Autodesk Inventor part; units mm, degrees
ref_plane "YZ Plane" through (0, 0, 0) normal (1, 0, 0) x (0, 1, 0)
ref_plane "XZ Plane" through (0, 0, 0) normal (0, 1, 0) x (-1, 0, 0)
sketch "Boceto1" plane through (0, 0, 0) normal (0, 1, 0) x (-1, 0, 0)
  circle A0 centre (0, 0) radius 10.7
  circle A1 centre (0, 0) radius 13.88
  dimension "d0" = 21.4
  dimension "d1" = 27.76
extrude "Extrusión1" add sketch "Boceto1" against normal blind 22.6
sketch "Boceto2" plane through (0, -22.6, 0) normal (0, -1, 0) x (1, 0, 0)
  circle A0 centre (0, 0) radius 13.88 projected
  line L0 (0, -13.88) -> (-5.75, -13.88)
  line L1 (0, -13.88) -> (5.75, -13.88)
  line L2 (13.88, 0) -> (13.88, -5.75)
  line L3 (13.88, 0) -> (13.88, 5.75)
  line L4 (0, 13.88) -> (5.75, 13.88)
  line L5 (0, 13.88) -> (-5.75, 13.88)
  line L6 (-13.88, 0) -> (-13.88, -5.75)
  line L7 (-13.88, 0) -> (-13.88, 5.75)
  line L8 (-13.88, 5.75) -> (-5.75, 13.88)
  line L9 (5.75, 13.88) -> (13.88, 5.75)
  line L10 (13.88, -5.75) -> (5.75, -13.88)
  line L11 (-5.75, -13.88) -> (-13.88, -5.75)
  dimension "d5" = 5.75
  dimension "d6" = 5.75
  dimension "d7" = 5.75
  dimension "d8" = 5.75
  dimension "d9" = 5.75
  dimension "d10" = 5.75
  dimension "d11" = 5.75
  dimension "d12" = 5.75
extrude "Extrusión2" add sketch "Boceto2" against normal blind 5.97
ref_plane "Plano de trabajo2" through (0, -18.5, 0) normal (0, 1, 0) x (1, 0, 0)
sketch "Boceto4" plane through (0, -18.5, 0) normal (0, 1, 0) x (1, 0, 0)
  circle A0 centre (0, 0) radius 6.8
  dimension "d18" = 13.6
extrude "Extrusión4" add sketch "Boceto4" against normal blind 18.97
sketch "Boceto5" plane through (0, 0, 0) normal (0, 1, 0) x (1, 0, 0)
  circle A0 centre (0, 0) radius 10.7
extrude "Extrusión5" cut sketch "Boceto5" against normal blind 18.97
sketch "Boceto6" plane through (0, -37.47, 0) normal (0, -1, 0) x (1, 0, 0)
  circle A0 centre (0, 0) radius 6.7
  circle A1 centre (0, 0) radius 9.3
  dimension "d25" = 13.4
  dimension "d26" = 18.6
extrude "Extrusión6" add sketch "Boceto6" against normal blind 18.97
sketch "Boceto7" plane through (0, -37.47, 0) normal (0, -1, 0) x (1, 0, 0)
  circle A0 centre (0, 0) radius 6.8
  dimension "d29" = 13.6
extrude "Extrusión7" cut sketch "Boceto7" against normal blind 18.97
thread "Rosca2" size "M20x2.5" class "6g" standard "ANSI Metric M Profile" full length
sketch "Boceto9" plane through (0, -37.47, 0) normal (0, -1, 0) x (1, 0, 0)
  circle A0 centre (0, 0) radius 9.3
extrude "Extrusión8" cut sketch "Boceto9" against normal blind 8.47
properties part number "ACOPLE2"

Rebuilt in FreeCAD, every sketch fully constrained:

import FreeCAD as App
import Part
import Sketcher
from FreeCAD import Vector


def add_polygon(sketch, points):
    """Adds a closed chain of lines whose ends are joined by coincident constraints."""
    first, n = sketch.GeometryCount, len(points)
    for a, b in zip(points, points[1:] + points[:1]):
        sketch.addGeometry(Part.LineSegment(App.Vector(*a, 0), App.Vector(*b, 0)), False)
    for i in range(n):
        sketch.addConstraint(Sketcher.Constraint("Coincident", first + i, 2, first + (i + 1) % n, 1))

doc = App.newDocument("Part")
body = doc.addObject("PartDesign::Body", "Body")

sketch1 = body.newObject("Sketcher::SketchObject", "Sketch")
sketch1.AttachmentSupport = (doc.getObject("XZ_Plane"), [""])
sketch1.MapMode = "FlatFace"
sketch1.addGeometry([
    Part.Circle(Vector(0, 0, 0), Vector(0, 0, 1), 13.88),
    Part.Circle(Vector(0, 0, 0), Vector(0, 0, 1), 10.7),
], False)
sketch1.addConstraint([
    Sketcher.Constraint("Coincident", 0, 3, -1, 1),
    Sketcher.Constraint("Coincident", 1, 3, -1, 1),
    Sketcher.Constraint("Diameter", 1, 21.4),
    Sketcher.Constraint("Diameter", 0, 27.76),
])
pad1 = body.newObject("PartDesign::Pad", "Pad")
pad1.Profile = sketch1
pad1.Length = 22.6

sketch2 = body.newObject("Sketcher::SketchObject", "Sketch001")
sketch2.AttachmentSupport = (doc.getObject("XZ_Plane"), [""])
sketch2.MapMode = "FlatFace"
sketch2.AttachmentOffset = App.Placement(Vector(0, 0, 22.6), App.Rotation())
add_polygon(sketch2, [(13.88, -5.75), (13.88, 5.75), (5.75, 13.88), (-5.75, 13.88), (-13.88, 5.75), (-13.88, -5.75), (-5.75, -13.88), (5.75, -13.88)])
sketch2.addConstraint([
    Sketcher.Constraint("Vertical", 0),
    Sketcher.Constraint("Horizontal", 2),
    Sketcher.Constraint("Vertical", 4),
    Sketcher.Constraint("Horizontal", 6),
    Sketcher.Constraint("Symmetric", 0, 2, 4, 2, -1, 1),
    Sketcher.Constraint("Symmetric", 1, 2, 5, 2, -1, 1),
    Sketcher.Constraint("Perpendicular", 1, 3),
    Sketcher.Constraint("Perpendicular", 5, 7),
    Sketcher.Constraint("Horizontal", 0, 2, 3, 2),
    Sketcher.Constraint("Horizontal", 4, 2, 7, 2),
    Sketcher.Constraint("Vertical", 2, 2, 5, 2),
    Sketcher.Constraint("Equal", 6, 0),
    Sketcher.Constraint("DistanceY", -1, 1, 0, 2, 5.75),
    Sketcher.Constraint("DistanceX", -1, 1, 0, 2, 13.88),
])
pad2 = body.newObject("PartDesign::Pad", "Pad001")
pad2.Profile = sketch2
pad2.Length = 5.97
pad2.Reversed = True

sketch3 = body.newObject("Sketcher::SketchObject", "Sketch002")
sketch3.AttachmentSupport = (doc.getObject("XZ_Plane"), [""])
sketch3.MapMode = "FlatFace"
sketch3.AttachmentOffset = App.Placement(Vector(0, 0, 18.5), App.Rotation())
sketch3.addGeometry(Part.Circle(Vector(0, 0, 0), Vector(0, 0, 1), 6.8), False)
sketch3.addConstraint([
    Sketcher.Constraint("Coincident", 0, 3, -1, 1),
    Sketcher.Constraint("Diameter", 0, 13.6),
])
pad3 = body.newObject("PartDesign::Pad", "Pad002")
pad3.Profile = sketch3
pad3.Length = 18.97

sketch4 = body.newObject("Sketcher::SketchObject", "Sketch003")
sketch4.AttachmentSupport = (doc.getObject("XZ_Plane"), [""])
sketch4.MapMode = "FlatFace"
sketch4.addGeometry(Part.Circle(Vector(0, 0, 0), Vector(0, 0, 1), 10.7), False)
sketch4.addConstraint([
    Sketcher.Constraint("Coincident", 0, 3, -1, 1),
    Sketcher.Constraint("Diameter", 0, 21.4),
])
pocket1 = body.newObject("PartDesign::Pocket", "Pocket")
pocket1.Profile = sketch4
pocket1.Length = 18.97
pocket1.Reversed = True

sketch5 = body.newObject("Sketcher::SketchObject", "Sketch004")
sketch5.AttachmentSupport = (doc.getObject("XZ_Plane"), [""])
sketch5.MapMode = "FlatFace"
sketch5.AttachmentOffset = App.Placement(Vector(0, 0, 37.47), App.Rotation())
sketch5.addGeometry([
    Part.Circle(Vector(0, 0, 0), Vector(0, 0, 1), 9.3),
    Part.Circle(Vector(0, 0, 0), Vector(0, 0, 1), 6.7),
], False)
sketch5.addConstraint([
    Sketcher.Constraint("Coincident", 0, 3, -1, 1),
    Sketcher.Constraint("Coincident", 1, 3, -1, 1),
    Sketcher.Constraint("Diameter", 0, 18.6),
    Sketcher.Constraint("Diameter", 1, 13.4),
])
pad4 = body.newObject("PartDesign::Pad", "Pad003")
pad4.Profile = sketch5
pad4.Length = 18.97
pad4.Reversed = True

sketch6 = body.newObject("Sketcher::SketchObject", "Sketch005")
sketch6.AttachmentSupport = (doc.getObject("XZ_Plane"), [""])
sketch6.MapMode = "FlatFace"
sketch6.AttachmentOffset = App.Placement(Vector(0, 0, 37.47), App.Rotation())
sketch6.addGeometry(Part.Circle(Vector(0, 0, 0), Vector(0, 0, 1), 6.8), False)
sketch6.addConstraint([
    Sketcher.Constraint("Coincident", 0, 3, -1, 1),
    Sketcher.Constraint("Diameter", 0, 13.6),
])
pocket2 = body.newObject("PartDesign::Pocket", "Pocket001")
pocket2.Profile = sketch6
pocket2.Length = 18.97

sketch7 = body.newObject("Sketcher::SketchObject", "Sketch006")
sketch7.AttachmentSupport = (doc.getObject("XZ_Plane"), [""])
sketch7.MapMode = "FlatFace"
sketch7.AttachmentOffset = App.Placement(Vector(0, 0, 37.47), App.Rotation())
sketch7.addGeometry(Part.Circle(Vector(0, 0, 0), Vector(0, 0, 1), 9.3), False)
sketch7.addConstraint([
    Sketcher.Constraint("Coincident", 0, 3, -1, 1),
    Sketcher.Constraint("Diameter", 0, 18.6),
])
pocket3 = body.newObject("PartDesign::Pocket", "Pocket002")
pocket3.Profile = sketch7
pocket3.Length = 8.47

doc.recompute()
